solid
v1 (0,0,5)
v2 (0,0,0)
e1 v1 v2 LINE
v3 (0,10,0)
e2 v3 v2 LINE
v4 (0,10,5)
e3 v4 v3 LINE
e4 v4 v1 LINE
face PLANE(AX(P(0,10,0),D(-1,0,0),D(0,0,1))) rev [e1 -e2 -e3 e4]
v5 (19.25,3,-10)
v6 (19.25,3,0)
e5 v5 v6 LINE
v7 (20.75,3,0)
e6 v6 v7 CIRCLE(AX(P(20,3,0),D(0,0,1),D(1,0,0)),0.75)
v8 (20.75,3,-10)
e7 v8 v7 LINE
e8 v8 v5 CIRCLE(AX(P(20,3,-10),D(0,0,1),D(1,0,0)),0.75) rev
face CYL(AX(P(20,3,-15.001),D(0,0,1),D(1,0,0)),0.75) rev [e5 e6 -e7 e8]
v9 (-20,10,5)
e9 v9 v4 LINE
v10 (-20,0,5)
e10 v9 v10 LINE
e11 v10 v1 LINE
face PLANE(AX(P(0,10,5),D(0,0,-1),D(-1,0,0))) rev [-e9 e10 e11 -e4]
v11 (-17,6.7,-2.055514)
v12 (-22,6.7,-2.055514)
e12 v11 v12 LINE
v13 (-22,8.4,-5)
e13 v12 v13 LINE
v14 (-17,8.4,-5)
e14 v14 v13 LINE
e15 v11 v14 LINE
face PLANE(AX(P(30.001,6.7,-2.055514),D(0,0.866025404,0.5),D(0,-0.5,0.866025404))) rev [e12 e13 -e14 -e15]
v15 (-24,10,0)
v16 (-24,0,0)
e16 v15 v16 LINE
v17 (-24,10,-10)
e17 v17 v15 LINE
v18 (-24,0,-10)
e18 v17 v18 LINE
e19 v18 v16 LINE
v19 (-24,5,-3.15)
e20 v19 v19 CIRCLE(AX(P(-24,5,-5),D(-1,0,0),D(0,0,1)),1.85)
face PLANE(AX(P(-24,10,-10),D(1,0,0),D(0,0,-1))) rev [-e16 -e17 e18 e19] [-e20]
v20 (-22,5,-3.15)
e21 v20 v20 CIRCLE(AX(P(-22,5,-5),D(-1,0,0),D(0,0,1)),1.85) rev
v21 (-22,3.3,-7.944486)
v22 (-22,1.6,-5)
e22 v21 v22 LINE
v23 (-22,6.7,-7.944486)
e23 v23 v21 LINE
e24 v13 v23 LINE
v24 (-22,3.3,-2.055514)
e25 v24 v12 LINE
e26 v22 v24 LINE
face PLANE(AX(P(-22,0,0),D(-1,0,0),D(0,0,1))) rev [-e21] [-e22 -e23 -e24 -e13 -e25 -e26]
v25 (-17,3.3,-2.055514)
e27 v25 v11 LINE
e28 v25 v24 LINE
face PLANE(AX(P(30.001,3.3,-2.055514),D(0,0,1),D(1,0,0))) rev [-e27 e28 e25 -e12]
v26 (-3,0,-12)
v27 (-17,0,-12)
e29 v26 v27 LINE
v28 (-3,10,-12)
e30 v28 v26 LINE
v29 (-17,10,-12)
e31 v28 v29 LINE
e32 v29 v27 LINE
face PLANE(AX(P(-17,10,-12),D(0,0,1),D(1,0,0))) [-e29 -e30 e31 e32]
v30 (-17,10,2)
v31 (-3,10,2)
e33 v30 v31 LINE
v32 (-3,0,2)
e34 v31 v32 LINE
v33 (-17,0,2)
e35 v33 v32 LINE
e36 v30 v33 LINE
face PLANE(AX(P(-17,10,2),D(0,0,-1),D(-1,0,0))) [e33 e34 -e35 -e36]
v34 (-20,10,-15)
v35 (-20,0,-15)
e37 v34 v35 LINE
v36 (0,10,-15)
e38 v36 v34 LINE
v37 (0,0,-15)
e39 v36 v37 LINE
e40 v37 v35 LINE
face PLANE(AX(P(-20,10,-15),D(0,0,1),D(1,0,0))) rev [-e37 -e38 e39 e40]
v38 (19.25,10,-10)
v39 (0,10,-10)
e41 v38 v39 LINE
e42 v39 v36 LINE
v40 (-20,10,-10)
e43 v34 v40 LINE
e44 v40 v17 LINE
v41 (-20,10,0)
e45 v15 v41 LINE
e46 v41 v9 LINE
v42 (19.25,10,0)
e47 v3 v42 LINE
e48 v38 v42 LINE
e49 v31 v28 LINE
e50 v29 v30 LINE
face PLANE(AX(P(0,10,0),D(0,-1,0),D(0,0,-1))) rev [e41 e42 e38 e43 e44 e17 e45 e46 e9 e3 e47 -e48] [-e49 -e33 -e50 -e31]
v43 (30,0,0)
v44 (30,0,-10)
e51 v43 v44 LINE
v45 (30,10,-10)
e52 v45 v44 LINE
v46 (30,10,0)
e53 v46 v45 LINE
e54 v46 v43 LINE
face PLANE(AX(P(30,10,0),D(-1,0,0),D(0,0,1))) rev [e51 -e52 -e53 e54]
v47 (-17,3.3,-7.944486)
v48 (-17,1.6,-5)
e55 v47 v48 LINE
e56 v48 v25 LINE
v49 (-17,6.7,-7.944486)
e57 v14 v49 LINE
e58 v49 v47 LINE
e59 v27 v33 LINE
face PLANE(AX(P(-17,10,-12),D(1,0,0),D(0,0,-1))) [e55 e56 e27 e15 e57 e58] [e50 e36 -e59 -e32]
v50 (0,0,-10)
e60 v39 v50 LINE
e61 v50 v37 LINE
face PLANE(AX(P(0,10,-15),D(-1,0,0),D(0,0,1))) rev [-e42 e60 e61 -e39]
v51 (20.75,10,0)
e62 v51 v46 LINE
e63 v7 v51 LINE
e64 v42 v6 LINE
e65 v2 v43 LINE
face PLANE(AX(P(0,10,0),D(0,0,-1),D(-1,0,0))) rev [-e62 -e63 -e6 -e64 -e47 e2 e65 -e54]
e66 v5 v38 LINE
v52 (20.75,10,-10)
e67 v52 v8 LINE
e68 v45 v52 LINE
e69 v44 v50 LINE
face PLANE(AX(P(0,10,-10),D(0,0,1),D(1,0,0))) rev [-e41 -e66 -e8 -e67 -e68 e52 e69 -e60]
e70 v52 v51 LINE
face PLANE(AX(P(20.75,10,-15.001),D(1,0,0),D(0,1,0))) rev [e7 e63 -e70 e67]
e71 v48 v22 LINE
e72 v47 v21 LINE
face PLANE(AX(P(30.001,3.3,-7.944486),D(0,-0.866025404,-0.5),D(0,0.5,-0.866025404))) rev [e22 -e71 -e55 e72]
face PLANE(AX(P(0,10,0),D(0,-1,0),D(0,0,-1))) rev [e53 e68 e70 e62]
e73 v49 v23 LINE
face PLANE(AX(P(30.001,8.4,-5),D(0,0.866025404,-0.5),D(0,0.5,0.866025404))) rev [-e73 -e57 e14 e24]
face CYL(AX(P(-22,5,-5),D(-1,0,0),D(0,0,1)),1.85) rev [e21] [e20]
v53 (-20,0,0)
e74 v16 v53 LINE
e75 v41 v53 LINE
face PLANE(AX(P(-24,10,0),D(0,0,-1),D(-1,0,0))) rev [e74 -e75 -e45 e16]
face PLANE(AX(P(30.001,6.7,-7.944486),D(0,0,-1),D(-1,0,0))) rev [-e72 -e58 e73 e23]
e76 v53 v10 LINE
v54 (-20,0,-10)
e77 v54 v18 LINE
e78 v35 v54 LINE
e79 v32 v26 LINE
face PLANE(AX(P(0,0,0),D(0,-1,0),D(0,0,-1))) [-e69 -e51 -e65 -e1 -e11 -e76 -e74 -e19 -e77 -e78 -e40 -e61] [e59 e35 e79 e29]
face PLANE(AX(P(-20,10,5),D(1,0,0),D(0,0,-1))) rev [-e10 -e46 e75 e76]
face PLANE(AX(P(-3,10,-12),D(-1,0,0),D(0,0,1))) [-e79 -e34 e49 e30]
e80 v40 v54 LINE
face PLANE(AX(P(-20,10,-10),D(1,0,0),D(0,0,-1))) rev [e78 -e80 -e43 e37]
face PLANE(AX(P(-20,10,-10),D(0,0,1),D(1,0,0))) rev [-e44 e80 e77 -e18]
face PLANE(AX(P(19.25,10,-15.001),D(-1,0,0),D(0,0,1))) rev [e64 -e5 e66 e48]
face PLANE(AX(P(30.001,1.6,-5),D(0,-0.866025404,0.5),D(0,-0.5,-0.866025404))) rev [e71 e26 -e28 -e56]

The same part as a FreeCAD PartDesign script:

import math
import FreeCAD as App
import Part
import Sketcher
Q = App.Units.Quantity


def add_polygon(sketch, points):
    """Adds a closed chain of lines whose ends are joined by coincident constraints."""
    first, n = sketch.GeometryCount, len(points)
    for a, b in zip(points, points[1:] + points[:1]):
        sketch.addGeometry(Part.LineSegment(App.Vector(*a, 0), App.Vector(*b, 0)), False)
    for i in range(n):
        sketch.addConstraint(Sketcher.Constraint("Coincident", first + i, 2, first + (i + 1) % n, 1))

doc = App.newDocument("Part")
body = doc.addObject("PartDesign::Body", "Body")

# Sketch on XZ plane
sketch1 = body.newObject("Sketcher::SketchObject", "Sketch")
sketch1.AttachmentSupport = (doc.getObject("XZ_Plane"), [""])
sketch1.MapMode = "FlatFace"
add_polygon(sketch1, [(0, 0), (30, 0), (30, -10), (0, -10), (0, -15), (-20, -15), (-20, -10), (-24, -10), (-24, 0), (-20, 0), (-20, 5), (0, 5)])  # lines 0-11
add_polygon(sketch1, [(-3, 2), (-17, 2), (-17, -12), (-3, -12)])  # lines 12-15
sketch1.addConstraint(Sketcher.Constraint("Horizontal", 0))
sketch1.addConstraint(Sketcher.Constraint("Vertical", 1))
sketch1.addConstraint(Sketcher.Constraint("Horizontal", 2))
sketch1.addConstraint(Sketcher.Constraint("Vertical", 3))
sketch1.addConstraint(Sketcher.Constraint("Horizontal", 4))
sketch1.addConstraint(Sketcher.Constraint("Vertical", 5))
sketch1.addConstraint(Sketcher.Constraint("Horizontal", 6))
sketch1.addConstraint(Sketcher.Constraint("Vertical", 7))
sketch1.addConstraint(Sketcher.Constraint("Horizontal", 8))
sketch1.addConstraint(Sketcher.Constraint("Vertical", 9))
sketch1.addConstraint(Sketcher.Constraint("Horizontal", 10))
sketch1.addConstraint(Sketcher.Constraint("Vertical", 11))
sketch1.addConstraint(Sketcher.Constraint("Horizontal", 12))
sketch1.addConstraint(Sketcher.Constraint("Vertical", 13))
sketch1.addConstraint(Sketcher.Constraint("Horizontal", 14))
sketch1.addConstraint(Sketcher.Constraint("Vertical", 15))
sketch1.addConstraint(Sketcher.Constraint("Coincident", 11, 2, -1, 1))
sketch1.addConstraint(Sketcher.Constraint("PointOnObject", 2, 2, -2))
sketch1.addConstraint(Sketcher.Constraint("PointOnObject", 7, 2, -1))
sketch1.addConstraint(Sketcher.Constraint("Horizontal", 2, 2, 5, 2))
sketch1.addConstraint(Sketcher.Constraint("Vertical", 5, 2, 8, 2))
sketch1.addConstraint(Sketcher.Constraint("Equal", 5, 9))
sketch1.addConstraint(Sketcher.Constraint("Equal", 14, 13))
sketch1.addConstraint(Sketcher.Constraint("DistanceX", 0, 1, 0, 2, Q("30 mm")))
sketch1.addConstraint(Sketcher.Constraint("DistanceX", 4, 2, 4, 1, Q("20 mm")))
sketch1.addConstraint(Sketcher.Constraint("DistanceX", 6, 2, 6, 1, Q("4 mm")))
sketch1.addConstraint(Sketcher.Constraint("DistanceX", 12, 2, 12, 1, Q("14 mm")))
sketch1.addConstraint(Sketcher.Constraint("DistanceY", 1, 2, 1, 1, Q("10 mm")))
sketch1.addConstraint(Sketcher.Constraint("DistanceY", 3, 2, 3, 1, Q("5 mm")))
sketch1.addConstraint(Sketcher.Constraint("DistanceX", 12, 2, -1, 1, Q("17 mm")))
sketch1.addConstraint(Sketcher.Constraint("DistanceY", -1, 1, 12, 2, Q("2 mm")))
pad1 = body.newObject("PartDesign::Pad", "Pad")
pad1.Profile = sketch1
pad1.Length = 10
pad1.Reversed = True

# Sketch on XY plane
sketch2 = body.newObject("Sketcher::SketchObject", "Sketch001")
sketch2.AttachmentSupport = (doc.getObject("XY_Plane"), [""])
sketch2.MapMode = "FlatFace"
sketch2.addGeometry(Part.LineSegment(App.Vector(20.8, 10, 0), App.Vector(19.2, 10, 0)), False)
sketch2.addGeometry(Part.LineSegment(App.Vector(19.2, 10, 0), App.Vector(19.2, 3, 0)), False)
sketch2.addGeometry(Part.ArcOfCircle(Part.Circle(App.Vector(20, 3, 0), App.Vector(0, 0, 1), 0.8), math.radians(180), math.radians(360)), False)
sketch2.addGeometry(Part.LineSegment(App.Vector(20.8, 3, 0), App.Vector(20.8, 10, 0)), False)
sketch2.addConstraint(Sketcher.Constraint("Coincident", 0, 2, 1, 1))
sketch2.addConstraint(Sketcher.Constraint("Tangent", 1, 2, 2, 1))
sketch2.addConstraint(Sketcher.Constraint("Tangent", 2, 2, 3, 1))
sketch2.addConstraint(Sketcher.Constraint("Coincident", 3, 2, 0, 1))
sketch2.addConstraint(Sketcher.Constraint("Horizontal", 0))
sketch2.addConstraint(Sketcher.Constraint("Vertical", 1))
sketch2.addConstraint(Sketcher.Constraint("Vertical", 3))
sketch2.addConstraint(Sketcher.Constraint("DistanceY", 1, 2, 1, 1, Q("7 mm")))
sketch2.addConstraint(Sketcher.Constraint("Radius", 2, Q("0.75 mm")))
sketch2.addConstraint(Sketcher.Constraint("DistanceX", -1, 1, 2, 3, Q("20 mm")))
sketch2.addConstraint(Sketcher.Constraint("DistanceY", -1, 1, 2, 3, Q("3 mm")))
pocket1 = body.newObject("PartDesign::Pocket", "Pocket")
pocket1.Profile = sketch2
pocket1.Type = "UpToFirst"

# Sketch on YZ plane
sketch3 = body.newObject("Sketcher::SketchObject", "Sketch002")
sketch3.AttachmentSupport = (doc.getObject("YZ_Plane"), [""])
sketch3.MapMode = "FlatFace"
sketch3.AttachmentOffset = App.Placement(App.Vector(0, 0, -24), App.Rotation())
sketch3.addGeometry(Part.Circle(App.Vector(5, -5, 0), App.Vector(0, 0, 1), 1.9), False)
sketch3.addConstraint(Sketcher.Constraint("Diameter", 0, Q("3.7 mm")))
sketch3.addConstraint(Sketcher.Constraint("DistanceX", -1, 1, 0, 3, Q("5 mm")))
sketch3.addConstraint(Sketcher.Constraint("DistanceY", 0, 3, -1, 1, Q("5 mm")))
pocket2 = body.newObject("PartDesign::Pocket", "Pocket001")
pocket2.Profile = sketch3
pocket2.Length = 2
pocket2.Reversed = True

# Sketch on YZ plane
sketch4 = body.newObject("Sketcher::SketchObject", "Sketch003")
sketch4.AttachmentSupport = (doc.getObject("YZ_Plane"), [""])
sketch4.MapMode = "FlatFace"
sketch4.AttachmentOffset = App.Placement(App.Vector(0, 0, -22), App.Rotation())
add_polygon(sketch4, [(8.4, -5), (6.7, -7.9), (3.3, -7.9), (1.6, -5), (3.3, -2.1), (6.7, -2.1)])  # lines 0-5
sketch4.addConstraint(Sketcher.Constraint("Horizontal", 1))
sketch4.addConstraint(Sketcher.Constraint("Horizontal", 4))
sketch4.addConstraint(Sketcher.Constraint("Parallel", 0, 3))
sketch4.addConstraint(Sketcher.Constraint("Parallel", 2, 5))
sketch4.addConstraint(Sketcher.Constraint("Horizontal", 2, 2, 5, 2))
sketch4.addConstraint(Sketcher.Constraint("Vertical", 1, 2, 3, 2))
sketch4.addConstraint(Sketcher.Constraint("Vertical", 0, 2, 4, 2))
sketch4.addConstraint(Sketcher.Constraint("Angle", 0, Q("-120 deg")))
sketch4.addConstraint(Sketcher.Constraint("DistanceX", 1, 2, 1, 1, Q("3.4 mm")))
sketch4.addConstraint(Sketcher.Constraint("DistanceY", 2, 2, -1, 1, Q("5 mm")))
sketch4.addConstraint(Sketcher.Constraint("Distance", 0, Q("3.4 mm")))
sketch4.addConstraint(Sketcher.Constraint("DistanceX", -1, 1, 0, 2, Q("6.7 mm")))
pocket3 = body.newObject("PartDesign::Pocket", "Pocket002")
pocket3.Profile = sketch4
pocket3.Type = "UpToFirst"
pocket3.Reversed = True

doc.recompute()
